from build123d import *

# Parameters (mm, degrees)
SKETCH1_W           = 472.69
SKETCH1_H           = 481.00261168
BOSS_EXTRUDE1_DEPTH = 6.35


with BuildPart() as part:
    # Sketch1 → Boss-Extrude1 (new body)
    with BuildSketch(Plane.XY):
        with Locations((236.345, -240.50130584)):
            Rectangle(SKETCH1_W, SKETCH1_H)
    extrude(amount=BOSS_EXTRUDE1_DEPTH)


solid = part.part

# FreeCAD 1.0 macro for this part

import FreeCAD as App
import Part
import Sketcher

V = App.Vector
Q = App.Units.Quantity

doc = App.newDocument("Part")
body = doc.addObject("PartDesign::Body", "Body")

# Sketch on XY plane
sketch1 = body.newObject("Sketcher::SketchObject", "Sketch")
sketch1.AttachmentSupport = (doc.getObject("XY_Plane"), [""])
sketch1.MapMode = "FlatFace"
sketch1.addGeometry(Part.LineSegment(V(0, 0, 0), V(0, -481.002612, 0)), False)
sketch1.addGeometry(Part.LineSegment(V(0, -481.002612, 0), V(472.69, -481.002612, 0)), False)
sketch1.addGeometry(Part.LineSegment(V(472.69, -481.002612, 0), V(472.69, 0, 0)), False)
sketch1.addGeometry(Part.LineSegment(V(472.69, 0, 0), V(0, 0, 0)), False)
sketch1.addConstraint(Sketcher.Constraint("Coincident", 0, 2, 1, 1))
sketch1.addConstraint(Sketcher.Constraint("Coincident", 1, 2, 2, 1))
sketch1.addConstraint(Sketcher.Constraint("Coincident", 2, 2, 3, 1))
sketch1.addConstraint(Sketcher.Constraint("Coincident", 3, 2, 0, 1))
sketch1.addConstraint(Sketcher.Constraint("Vertical", 0))
sketch1.addConstraint(Sketcher.Constraint("Horizontal", 1))
sketch1.addConstraint(Sketcher.Constraint("Vertical", 2))
sketch1.addConstraint(Sketcher.Constraint("Horizontal", 3))
sketch1.addConstraint(Sketcher.Constraint("Coincident", 3, 2, -1, 1))
sketch1.addConstraint(Sketcher.Constraint("DistanceX", 1, 1, 1, 2, Q("472.69 mm")))
sketch1.addConstraint(Sketcher.Constraint("DistanceY", 0, 2, 0, 1, Q("481.002612 mm")))
pad1 = body.newObject("PartDesign::Pad", "Pad")
pad1.Profile = sketch1
pad1.Length = Q("0.25 in")

doc.recompute()
